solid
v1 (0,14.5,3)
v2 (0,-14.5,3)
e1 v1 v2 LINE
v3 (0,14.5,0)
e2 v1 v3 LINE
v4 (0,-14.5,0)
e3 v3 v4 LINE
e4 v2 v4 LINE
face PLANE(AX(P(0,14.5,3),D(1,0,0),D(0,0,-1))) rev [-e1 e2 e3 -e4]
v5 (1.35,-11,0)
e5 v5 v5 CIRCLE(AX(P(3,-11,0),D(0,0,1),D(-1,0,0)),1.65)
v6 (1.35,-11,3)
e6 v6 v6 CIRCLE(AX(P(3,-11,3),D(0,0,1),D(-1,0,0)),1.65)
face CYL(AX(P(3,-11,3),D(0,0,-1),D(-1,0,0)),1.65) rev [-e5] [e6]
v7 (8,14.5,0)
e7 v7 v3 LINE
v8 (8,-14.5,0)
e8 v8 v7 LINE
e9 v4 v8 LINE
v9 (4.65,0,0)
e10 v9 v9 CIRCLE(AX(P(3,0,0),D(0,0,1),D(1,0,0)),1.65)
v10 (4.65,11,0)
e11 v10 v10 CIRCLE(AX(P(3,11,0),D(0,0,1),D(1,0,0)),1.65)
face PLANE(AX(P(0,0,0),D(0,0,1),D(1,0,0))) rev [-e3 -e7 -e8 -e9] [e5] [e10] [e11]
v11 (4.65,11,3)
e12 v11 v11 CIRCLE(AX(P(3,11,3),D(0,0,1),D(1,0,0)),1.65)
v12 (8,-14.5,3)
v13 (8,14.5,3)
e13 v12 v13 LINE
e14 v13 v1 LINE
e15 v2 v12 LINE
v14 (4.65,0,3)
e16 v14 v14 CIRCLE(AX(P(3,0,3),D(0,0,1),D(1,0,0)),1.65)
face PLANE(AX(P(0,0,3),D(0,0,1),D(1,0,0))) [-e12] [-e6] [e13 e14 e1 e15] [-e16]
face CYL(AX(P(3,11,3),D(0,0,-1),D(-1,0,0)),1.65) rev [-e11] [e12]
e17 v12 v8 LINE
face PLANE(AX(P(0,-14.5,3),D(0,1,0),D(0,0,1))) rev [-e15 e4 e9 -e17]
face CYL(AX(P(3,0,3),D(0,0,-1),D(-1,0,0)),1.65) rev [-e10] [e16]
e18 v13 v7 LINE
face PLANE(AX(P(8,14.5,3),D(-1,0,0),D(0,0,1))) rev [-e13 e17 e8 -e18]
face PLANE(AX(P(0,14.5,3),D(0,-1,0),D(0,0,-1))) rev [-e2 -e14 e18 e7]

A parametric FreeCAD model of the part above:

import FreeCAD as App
import Part
import Sketcher

doc = App.newDocument("Part")
body = doc.addObject("PartDesign::Body", "Body")

sketch1 = body.newObject("Sketcher::SketchObject", "Sketch")
sketch1.AttachmentSupport = (doc.getObject("XY_Plane"), [""])
sketch1.MapMode = "FlatFace"
sketch1.addGeometry([
    Part.LineSegment(App.Vector(0, 14.5, 0), App.Vector(0, -14.5, 0)),
    Part.LineSegment(App.Vector(0, -14.5, 0), App.Vector(8, -14.5, 0)),
    Part.LineSegment(App.Vector(8, -14.5, 0), App.Vector(8, 14.5, 0)),
    Part.LineSegment(App.Vector(8, 14.5, 0), App.Vector(0, 14.5, 0)),
    Part.Circle(App.Vector(3, -11, 0), App.Vector(0, 0, 1), 1.6),
    Part.Circle(App.Vector(3, 0, 0), App.Vector(0, 0, 1), 1.6),
    Part.Circle(App.Vector(3, 11, 0), App.Vector(0, 0, 1), 1.6),
], False)
sketch1.addConstraint([
    Sketcher.Constraint("Coincident", 0, 2, 1, 1),
    Sketcher.Constraint("Coincident", 1, 2, 2, 1),
    Sketcher.Constraint("Coincident", 2, 2, 3, 1),
    Sketcher.Constraint("Coincident", 3, 2, 0, 1),
    Sketcher.Constraint("Vertical", 0),
    Sketcher.Constraint("Horizontal", 1),
    Sketcher.Constraint("Vertical", 2),
    Sketcher.Constraint("Horizontal", 3),
    Sketcher.Constraint("Equal", 4, 5),
    Sketcher.Constraint("Equal", 5, 6),
    Sketcher.Constraint("Symmetric", 0, 2, 3, 2, -1, 1),
    Sketcher.Constraint("Symmetric", 4, 3, 6, 3, -1),
    Sketcher.Constraint("PointOnObject", 5, 3, -1),
    Sketcher.Constraint("Vertical", 4, 3, 5, 3),
    Sketcher.Constraint("Diameter", 4, 3.3),
    Sketcher.Constraint("DistanceX", 1, 1, 1, 2, 8.0),
    Sketcher.Constraint("DistanceY", 0, 2, 0, 1, 29.0),
    Sketcher.Constraint("DistanceX", -1, 1, 4, 3, 3.0),
    Sketcher.Constraint("DistanceY", 4, 3, -1, 1, 11.0),
])
pad1 = body.newObject("PartDesign::Pad", "Pad")
pad1.Profile = sketch1
pad1.Length = 3

doc.recompute()
